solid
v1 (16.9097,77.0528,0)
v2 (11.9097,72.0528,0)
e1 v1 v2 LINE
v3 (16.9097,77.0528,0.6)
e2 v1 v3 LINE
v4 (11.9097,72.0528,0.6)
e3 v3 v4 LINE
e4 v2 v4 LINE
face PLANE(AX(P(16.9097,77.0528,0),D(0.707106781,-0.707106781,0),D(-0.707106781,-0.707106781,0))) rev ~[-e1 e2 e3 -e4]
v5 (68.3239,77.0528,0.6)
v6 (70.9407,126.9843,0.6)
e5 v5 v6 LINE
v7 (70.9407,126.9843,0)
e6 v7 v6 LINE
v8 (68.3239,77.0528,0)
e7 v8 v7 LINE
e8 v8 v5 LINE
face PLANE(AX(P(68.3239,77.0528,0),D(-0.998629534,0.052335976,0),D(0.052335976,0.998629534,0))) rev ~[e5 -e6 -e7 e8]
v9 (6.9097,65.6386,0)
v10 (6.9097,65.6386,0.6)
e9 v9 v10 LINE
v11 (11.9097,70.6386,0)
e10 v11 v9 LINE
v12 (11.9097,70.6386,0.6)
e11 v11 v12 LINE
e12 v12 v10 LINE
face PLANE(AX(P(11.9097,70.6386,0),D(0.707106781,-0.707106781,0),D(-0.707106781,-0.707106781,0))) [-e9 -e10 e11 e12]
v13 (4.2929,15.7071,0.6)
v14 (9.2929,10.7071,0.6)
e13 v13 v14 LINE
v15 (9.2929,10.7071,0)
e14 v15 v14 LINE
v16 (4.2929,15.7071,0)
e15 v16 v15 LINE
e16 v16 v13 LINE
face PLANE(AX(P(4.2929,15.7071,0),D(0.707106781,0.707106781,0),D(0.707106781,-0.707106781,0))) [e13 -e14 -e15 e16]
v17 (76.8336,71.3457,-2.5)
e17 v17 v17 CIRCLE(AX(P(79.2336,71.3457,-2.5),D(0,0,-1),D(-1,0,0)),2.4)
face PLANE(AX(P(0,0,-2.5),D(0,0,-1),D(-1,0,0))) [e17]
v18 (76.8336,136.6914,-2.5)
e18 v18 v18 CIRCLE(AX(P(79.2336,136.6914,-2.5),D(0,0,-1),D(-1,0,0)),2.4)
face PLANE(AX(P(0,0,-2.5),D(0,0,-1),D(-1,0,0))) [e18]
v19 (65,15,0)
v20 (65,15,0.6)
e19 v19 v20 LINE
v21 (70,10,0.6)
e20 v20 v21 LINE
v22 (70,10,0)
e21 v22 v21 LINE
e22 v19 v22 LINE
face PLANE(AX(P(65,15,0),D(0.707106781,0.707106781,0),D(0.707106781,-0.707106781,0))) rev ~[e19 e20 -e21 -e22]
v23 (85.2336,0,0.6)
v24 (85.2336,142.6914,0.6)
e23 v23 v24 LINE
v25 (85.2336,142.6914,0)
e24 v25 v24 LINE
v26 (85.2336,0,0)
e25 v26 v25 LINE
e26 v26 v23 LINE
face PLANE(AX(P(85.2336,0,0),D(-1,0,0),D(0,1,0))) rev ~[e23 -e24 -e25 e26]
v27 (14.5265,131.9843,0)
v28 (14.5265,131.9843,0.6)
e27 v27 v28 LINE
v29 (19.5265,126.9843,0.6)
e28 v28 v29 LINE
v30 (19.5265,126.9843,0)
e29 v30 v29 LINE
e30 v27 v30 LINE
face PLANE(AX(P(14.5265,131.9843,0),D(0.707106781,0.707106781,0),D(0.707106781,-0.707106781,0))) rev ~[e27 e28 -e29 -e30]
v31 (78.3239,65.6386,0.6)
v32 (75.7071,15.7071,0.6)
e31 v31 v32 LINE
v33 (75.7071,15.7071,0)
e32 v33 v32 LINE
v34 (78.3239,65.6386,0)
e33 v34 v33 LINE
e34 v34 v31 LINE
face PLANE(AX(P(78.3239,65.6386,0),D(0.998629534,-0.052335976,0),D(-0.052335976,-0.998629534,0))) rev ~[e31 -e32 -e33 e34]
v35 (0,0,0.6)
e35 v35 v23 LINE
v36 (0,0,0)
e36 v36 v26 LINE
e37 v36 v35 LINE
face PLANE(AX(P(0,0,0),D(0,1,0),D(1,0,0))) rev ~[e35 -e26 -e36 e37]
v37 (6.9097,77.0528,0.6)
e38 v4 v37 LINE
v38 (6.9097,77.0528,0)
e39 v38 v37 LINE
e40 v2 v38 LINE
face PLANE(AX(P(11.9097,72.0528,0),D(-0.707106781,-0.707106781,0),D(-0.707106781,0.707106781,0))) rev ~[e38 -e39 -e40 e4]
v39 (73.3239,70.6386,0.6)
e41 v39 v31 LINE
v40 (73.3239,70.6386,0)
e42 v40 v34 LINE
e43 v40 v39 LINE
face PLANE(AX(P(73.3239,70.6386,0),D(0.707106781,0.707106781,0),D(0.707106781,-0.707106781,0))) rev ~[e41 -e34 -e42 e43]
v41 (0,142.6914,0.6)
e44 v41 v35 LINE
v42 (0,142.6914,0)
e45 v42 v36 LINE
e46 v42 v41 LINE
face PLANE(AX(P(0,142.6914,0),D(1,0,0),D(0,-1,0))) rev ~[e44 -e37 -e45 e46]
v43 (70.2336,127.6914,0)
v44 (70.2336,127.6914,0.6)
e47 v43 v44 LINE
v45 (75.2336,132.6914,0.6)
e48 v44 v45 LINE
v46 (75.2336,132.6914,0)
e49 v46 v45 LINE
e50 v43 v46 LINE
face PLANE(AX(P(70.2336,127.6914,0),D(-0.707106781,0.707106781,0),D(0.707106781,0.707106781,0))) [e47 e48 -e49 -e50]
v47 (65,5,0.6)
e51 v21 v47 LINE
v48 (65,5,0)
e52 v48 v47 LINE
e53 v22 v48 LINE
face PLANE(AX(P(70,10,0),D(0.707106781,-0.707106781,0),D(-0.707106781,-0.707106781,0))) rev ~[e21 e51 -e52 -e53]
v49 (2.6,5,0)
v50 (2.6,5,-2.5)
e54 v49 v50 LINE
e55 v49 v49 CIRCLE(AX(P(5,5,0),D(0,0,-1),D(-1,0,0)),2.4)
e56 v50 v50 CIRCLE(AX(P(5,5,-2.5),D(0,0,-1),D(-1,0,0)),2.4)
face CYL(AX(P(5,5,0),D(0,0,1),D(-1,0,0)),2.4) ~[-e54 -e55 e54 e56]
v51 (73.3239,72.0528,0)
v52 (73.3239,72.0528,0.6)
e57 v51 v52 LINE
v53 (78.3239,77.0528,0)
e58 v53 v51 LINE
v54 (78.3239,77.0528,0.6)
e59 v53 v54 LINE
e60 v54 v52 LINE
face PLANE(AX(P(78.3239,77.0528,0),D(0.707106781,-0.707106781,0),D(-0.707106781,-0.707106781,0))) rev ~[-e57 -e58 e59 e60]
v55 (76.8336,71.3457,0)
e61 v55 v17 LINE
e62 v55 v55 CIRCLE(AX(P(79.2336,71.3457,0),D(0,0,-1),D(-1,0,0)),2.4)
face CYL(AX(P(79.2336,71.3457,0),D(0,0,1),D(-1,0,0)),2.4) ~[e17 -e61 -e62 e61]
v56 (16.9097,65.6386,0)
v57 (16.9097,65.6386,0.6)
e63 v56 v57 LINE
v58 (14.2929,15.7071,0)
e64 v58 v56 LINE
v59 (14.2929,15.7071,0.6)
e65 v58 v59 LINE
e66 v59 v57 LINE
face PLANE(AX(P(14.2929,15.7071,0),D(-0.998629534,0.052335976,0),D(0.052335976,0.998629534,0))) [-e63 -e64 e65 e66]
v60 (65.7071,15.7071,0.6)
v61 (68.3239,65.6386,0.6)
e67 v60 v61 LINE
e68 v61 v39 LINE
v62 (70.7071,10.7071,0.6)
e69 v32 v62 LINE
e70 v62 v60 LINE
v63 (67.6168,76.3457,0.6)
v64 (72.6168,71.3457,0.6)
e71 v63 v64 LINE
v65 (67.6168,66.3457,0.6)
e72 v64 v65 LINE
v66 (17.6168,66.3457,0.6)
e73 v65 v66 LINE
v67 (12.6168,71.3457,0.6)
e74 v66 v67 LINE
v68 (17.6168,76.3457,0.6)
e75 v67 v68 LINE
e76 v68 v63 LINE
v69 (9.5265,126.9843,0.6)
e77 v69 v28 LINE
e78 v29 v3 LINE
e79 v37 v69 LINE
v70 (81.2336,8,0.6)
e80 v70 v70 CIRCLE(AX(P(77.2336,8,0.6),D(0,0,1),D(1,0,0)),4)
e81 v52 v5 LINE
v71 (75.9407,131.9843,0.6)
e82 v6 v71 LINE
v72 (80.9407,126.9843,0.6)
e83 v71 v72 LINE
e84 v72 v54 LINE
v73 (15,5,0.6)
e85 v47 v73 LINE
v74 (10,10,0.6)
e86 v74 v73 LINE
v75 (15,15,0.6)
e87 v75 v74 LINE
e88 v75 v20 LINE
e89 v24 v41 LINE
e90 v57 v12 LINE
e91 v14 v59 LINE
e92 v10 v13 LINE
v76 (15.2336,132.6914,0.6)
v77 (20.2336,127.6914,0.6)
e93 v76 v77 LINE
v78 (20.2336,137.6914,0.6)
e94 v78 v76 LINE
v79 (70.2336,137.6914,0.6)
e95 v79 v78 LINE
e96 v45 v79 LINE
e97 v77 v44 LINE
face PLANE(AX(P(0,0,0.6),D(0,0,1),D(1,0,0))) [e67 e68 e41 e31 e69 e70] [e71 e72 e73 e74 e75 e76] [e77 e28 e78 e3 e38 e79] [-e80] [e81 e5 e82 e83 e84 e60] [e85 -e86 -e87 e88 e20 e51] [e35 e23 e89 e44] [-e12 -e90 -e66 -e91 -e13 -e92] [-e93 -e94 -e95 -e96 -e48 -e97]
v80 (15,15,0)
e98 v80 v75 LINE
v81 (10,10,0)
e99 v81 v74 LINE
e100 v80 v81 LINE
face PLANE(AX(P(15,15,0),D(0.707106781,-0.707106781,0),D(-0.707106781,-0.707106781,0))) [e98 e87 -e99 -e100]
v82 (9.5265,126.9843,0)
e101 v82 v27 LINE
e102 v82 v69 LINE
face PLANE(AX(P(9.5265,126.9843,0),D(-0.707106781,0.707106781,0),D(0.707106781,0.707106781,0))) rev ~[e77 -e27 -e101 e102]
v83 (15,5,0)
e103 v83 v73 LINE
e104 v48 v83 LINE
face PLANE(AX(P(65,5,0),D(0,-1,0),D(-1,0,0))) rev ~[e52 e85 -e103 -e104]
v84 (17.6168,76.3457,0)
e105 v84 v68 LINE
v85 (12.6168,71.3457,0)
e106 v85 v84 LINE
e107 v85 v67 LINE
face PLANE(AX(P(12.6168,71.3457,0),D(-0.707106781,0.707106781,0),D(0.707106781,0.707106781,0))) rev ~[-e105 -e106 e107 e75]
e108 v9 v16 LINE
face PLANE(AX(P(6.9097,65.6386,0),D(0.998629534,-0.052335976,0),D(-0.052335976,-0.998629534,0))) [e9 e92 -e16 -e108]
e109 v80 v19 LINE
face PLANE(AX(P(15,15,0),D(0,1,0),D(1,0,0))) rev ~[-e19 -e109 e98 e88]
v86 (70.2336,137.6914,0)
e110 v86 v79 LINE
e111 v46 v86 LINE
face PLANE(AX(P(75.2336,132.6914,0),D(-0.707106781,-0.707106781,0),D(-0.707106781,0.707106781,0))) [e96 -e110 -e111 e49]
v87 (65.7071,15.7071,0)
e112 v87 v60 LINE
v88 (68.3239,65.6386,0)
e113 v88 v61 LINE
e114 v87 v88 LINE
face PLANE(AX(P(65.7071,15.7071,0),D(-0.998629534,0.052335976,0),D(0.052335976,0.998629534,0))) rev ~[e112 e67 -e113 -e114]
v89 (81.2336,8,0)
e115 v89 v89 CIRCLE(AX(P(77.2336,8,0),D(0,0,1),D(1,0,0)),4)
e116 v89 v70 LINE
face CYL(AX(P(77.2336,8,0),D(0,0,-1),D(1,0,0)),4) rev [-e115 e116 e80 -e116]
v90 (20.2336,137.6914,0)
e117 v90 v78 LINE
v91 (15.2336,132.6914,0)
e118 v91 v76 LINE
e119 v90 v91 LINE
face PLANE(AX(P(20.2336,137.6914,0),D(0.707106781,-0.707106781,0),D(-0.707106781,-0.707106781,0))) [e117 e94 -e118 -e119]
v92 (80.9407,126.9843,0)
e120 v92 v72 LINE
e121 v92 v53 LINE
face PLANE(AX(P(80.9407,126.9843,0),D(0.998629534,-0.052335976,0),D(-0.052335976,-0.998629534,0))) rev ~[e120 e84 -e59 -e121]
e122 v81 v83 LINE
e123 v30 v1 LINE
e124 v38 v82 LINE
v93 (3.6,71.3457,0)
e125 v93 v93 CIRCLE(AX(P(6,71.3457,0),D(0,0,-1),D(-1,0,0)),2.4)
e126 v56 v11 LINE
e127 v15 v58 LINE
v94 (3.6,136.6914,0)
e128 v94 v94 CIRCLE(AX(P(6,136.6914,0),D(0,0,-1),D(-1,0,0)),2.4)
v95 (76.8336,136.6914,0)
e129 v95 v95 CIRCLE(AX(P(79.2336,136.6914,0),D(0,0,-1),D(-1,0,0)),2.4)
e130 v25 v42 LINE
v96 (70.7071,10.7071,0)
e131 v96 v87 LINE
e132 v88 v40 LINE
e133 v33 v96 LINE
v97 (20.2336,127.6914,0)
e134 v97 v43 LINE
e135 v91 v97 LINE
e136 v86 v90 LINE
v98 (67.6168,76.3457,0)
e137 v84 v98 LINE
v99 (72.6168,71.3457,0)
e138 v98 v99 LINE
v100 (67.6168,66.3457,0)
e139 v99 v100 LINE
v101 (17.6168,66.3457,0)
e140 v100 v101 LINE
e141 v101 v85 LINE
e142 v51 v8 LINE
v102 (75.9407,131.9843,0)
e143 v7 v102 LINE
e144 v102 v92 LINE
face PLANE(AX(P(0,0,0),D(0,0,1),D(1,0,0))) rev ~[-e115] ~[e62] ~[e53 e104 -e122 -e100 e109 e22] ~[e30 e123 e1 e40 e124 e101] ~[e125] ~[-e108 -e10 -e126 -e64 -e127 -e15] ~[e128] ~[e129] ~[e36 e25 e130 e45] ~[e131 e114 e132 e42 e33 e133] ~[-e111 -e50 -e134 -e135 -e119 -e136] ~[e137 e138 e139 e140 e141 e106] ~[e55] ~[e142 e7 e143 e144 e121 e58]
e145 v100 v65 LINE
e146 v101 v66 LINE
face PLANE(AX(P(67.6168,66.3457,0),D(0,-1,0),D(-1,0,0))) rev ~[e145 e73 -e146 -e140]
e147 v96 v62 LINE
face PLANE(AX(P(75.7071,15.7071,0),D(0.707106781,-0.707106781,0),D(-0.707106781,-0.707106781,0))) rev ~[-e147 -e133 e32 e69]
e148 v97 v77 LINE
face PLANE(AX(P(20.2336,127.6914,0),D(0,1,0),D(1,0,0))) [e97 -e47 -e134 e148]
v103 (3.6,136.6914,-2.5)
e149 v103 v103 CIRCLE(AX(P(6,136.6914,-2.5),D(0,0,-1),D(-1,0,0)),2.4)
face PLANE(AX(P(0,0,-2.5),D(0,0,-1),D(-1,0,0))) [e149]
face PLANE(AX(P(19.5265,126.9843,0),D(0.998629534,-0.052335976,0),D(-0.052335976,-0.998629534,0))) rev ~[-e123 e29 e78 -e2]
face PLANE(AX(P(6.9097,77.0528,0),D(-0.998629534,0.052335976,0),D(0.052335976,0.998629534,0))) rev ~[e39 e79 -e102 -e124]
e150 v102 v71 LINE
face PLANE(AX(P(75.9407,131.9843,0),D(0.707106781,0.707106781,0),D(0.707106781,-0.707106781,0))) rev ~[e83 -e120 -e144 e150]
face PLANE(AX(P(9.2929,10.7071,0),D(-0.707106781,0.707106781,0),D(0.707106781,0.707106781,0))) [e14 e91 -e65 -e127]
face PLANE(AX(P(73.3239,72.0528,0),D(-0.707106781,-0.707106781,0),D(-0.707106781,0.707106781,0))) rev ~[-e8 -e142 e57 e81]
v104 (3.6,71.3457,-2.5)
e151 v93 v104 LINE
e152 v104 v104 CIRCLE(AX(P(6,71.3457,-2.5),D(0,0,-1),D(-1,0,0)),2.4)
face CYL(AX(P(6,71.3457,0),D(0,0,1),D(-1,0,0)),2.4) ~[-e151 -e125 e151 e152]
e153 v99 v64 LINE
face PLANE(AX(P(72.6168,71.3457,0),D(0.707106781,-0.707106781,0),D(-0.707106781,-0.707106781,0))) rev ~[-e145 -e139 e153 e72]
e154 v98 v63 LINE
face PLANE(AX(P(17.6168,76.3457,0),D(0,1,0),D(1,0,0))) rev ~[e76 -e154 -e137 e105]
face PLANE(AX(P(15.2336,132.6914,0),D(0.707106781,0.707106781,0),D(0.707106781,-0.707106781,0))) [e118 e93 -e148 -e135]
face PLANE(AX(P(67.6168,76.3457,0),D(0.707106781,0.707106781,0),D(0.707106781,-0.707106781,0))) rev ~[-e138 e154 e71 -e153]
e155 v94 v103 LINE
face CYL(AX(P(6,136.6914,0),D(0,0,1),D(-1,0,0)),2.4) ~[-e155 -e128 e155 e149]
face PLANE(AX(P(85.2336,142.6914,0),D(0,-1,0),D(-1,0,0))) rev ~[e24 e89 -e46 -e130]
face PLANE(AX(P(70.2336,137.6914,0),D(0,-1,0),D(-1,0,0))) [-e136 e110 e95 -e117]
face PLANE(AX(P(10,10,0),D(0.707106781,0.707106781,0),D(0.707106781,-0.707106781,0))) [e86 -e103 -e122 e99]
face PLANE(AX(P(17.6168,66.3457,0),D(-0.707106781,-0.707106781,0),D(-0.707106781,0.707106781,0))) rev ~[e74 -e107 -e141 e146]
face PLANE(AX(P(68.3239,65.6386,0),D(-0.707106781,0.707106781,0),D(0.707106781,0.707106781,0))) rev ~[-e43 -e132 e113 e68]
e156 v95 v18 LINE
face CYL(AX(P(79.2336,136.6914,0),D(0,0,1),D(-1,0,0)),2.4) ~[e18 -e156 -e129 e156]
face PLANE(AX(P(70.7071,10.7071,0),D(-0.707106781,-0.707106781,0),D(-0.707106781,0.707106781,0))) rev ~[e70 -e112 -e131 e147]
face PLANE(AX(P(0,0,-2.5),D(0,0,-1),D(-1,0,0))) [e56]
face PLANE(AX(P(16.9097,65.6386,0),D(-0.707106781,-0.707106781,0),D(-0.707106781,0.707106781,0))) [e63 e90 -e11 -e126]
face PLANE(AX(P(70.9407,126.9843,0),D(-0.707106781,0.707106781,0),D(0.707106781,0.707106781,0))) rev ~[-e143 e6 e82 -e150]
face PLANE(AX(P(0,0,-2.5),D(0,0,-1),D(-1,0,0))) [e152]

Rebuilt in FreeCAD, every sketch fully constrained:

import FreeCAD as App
import Part
import Sketcher
from FreeCAD import Vector
Q = App.Units.Quantity


def add_polygon(sketch, points):
    """Adds a closed chain of lines whose ends are joined by coincident constraints."""
    first, n = sketch.GeometryCount, len(points)
    for a, b in zip(points, points[1:] + points[:1]):
        sketch.addGeometry(Part.LineSegment(App.Vector(*a, 0), App.Vector(*b, 0)), False)
    for i in range(n):
        sketch.addConstraint(Sketcher.Constraint("Coincident", first + i, 2, first + (i + 1) % n, 1))

doc = App.newDocument("Part")
body = doc.addObject("PartDesign::Body", "Body")

# Sketch on XY plane
sketch1 = body.newObject("Sketcher::SketchObject", "Sketch")
sketch1.AttachmentSupport = (doc.getObject("XY_Plane"), [""])
sketch1.MapMode = "FlatFace"
add_polygon(sketch1, [(0, 142.7), (0, 0), (85.2, 0), (85.2, 142.7)])  # lines 0-3
add_polygon(sketch1, [(10, 10), (15, 15), (65, 15), (70, 10), (65, 5), (15, 5)])  # lines 4-9
add_polygon(sketch1, [(6.9, 65.6), (11.9, 70.6), (16.9, 65.6), (14.3, 15.7), (9.3, 10.7), (4.3, 15.7)])  # lines 10-15
sketch1.addGeometry(Part.Circle(Vector(77.2, 8, 0), Vector(0, 0, 1), 4), False)  # 16
add_polygon(sketch1, [(75.7, 15.7), (70.7, 10.7), (65.7, 15.7), (68.3, 65.6), (73.3, 70.6), (78.3, 65.6)])  # lines 17-22
add_polygon(sketch1, [(9.5, 127), (14.5, 132), (19.5, 127), (16.9, 77.1), (11.9, 72.1), (6.9, 77.1)])  # lines 23-28
add_polygon(sketch1, [(17.6, 66.3), (12.6, 71.3), (17.6, 76.3), (67.6, 76.3), (72.6, 71.3), (67.6, 66.3)])  # lines 29-34
add_polygon(sketch1, [(70.9, 127), (75.9, 132), (80.9, 127), (78.3, 77.1), (73.3, 72.1), (68.3, 77.1)])  # lines 35-40
add_polygon(sketch1, [(15.2, 132.7), (20.2, 137.7), (70.2, 137.7), (75.2, 132.7), (70.2, 127.7), (20.2, 127.7)])  # lines 41-46
sketch1.addConstraint(Sketcher.Constraint("Vertical", 0))
sketch1.addConstraint(Sketcher.Constraint("Horizontal", 1))
sketch1.addConstraint(Sketcher.Constraint("Vertical", 2))
sketch1.addConstraint(Sketcher.Constraint("Horizontal", 3))
sketch1.addConstraint(Sketcher.Constraint("Horizontal", 5))
sketch1.addConstraint(Sketcher.Constraint("Horizontal", 8))
sketch1.addConstraint(Sketcher.Constraint("Horizontal", 31))
sketch1.addConstraint(Sketcher.Constraint("Horizontal", 34))
sketch1.addConstraint(Sketcher.Constraint("Horizontal", 42))
sketch1.addConstraint(Sketcher.Constraint("Horizontal", 45))
sketch1.addConstraint(Sketcher.Constraint("Coincident", 0, 2, -1, 1))
sketch1.addConstraint(Sketcher.Constraint("Perpendicular", 4, 6))
sketch1.addConstraint(Sketcher.Constraint("Perpendicular", 6, 7))
sketch1.addConstraint(Sketcher.Constraint("Perpendicular", 7, 9))
sketch1.addConstraint(Sketcher.Constraint("Perpendicular", 9, 10))
sketch1.addConstraint(Sketcher.Constraint("Perpendicular", 10, 11))
sketch1.addConstraint(Sketcher.Constraint("Perpendicular", 11, 13))
sketch1.addConstraint(Sketcher.Constraint("Perpendicular", 13, 14))
sketch1.addConstraint(Sketcher.Constraint("Parallel", 12, 15))
sketch1.addConstraint(Sketcher.Constraint("Perpendicular", 14, 17))
sketch1.addConstraint(Sketcher.Constraint("Perpendicular", 17, 18))
sketch1.addConstraint(Sketcher.Constraint("Parallel", 15, 19))
sketch1.addConstraint(Sketcher.Constraint("Perpendicular", 18, 20))
sketch1.addConstraint(Sketcher.Constraint("Perpendicular", 20, 21))
sketch1.addConstraint(Sketcher.Constraint("Parallel", 19, 22))
sketch1.addConstraint(Sketcher.Constraint("Perpendicular", 21, 23))
sketch1.addConstraint(Sketcher.Constraint("Perpendicular", 23, 24))
sketch1.addConstraint(Sketcher.Constraint("Parallel", 22, 25))
sketch1.addConstraint(Sketcher.Constraint("Perpendicular", 24, 26))
sketch1.addConstraint(Sketcher.Constraint("Perpendicular", 26, 27))
sketch1.addConstraint(Sketcher.Constraint("Parallel", 25, 28))
sketch1.addConstraint(Sketcher.Constraint("Parallel", 27, 29))
sketch1.addConstraint(Sketcher.Constraint("Perpendicular", 29, 30))
sketch1.addConstraint(Sketcher.Constraint("Perpendicular", 30, 32))
sketch1.addConstraint(Sketcher.Constraint("Perpendicular", 32, 33))
sketch1.addConstraint(Sketcher.Constraint("Parallel", 33, 35))
sketch1.addConstraint(Sketcher.Constraint("Perpendicular", 35, 36))
sketch1.addConstraint(Sketcher.Constraint("Parallel", 28, 37))
sketch1.addConstraint(Sketcher.Constraint("Perpendicular", 36, 38))
sketch1.addConstraint(Sketcher.Constraint("Perpendicular", 38, 39))
sketch1.addConstraint(Sketcher.Constraint("Parallel", 37, 40))
sketch1.addConstraint(Sketcher.Constraint("Perpendicular", 39, 41))
sketch1.addConstraint(Sketcher.Constraint("Perpendicular", 41, 43))
sketch1.addConstraint(Sketcher.Constraint("Perpendicular", 43, 44))
sketch1.addConstraint(Sketcher.Constraint("Perpendicular", 44, 46))
sketch1.addConstraint(Sketcher.Constraint("Horizontal", 6, 2, 9, 2))
sketch1.addConstraint(Sketcher.Constraint("Horizontal", 12, 2, 14, 2))
sketch1.addConstraint(Sketcher.Constraint("Horizontal", 11, 2, 15, 2))
sketch1.addConstraint(Sketcher.Constraint("Horizontal", 13, 2, 17, 2))
sketch1.addConstraint(Sketcher.Constraint("Horizontal", 14, 2, 18, 2))
sketch1.addConstraint(Sketcher.Constraint("Horizontal", 15, 2, 19, 2))
sketch1.addConstraint(Sketcher.Constraint("Horizontal", 10, 2, 20, 2))
sketch1.addConstraint(Sketcher.Constraint("Horizontal", 19, 2, 21, 2))
sketch1.addConstraint(Sketcher.Constraint("Horizontal", 25, 2, 27, 2))
sketch1.addConstraint(Sketcher.Constraint("Horizontal", 24, 2, 28, 2))
sketch1.addConstraint(Sketcher.Constraint("Horizontal", 29, 2, 32, 2))
sketch1.addConstraint(Sketcher.Constraint("Horizontal", 23, 2, 35, 2))
sketch1.addConstraint(Sketcher.Constraint("Horizontal", 28, 2, 36, 2))
sketch1.addConstraint(Sketcher.Constraint("Horizontal", 27, 2, 37, 2))
sketch1.addConstraint(Sketcher.Constraint("Horizontal", 26, 2, 38, 2))
sketch1.addConstraint(Sketcher.Constraint("Horizontal", 37, 2, 39, 2))
sketch1.addConstraint(Sketcher.Constraint("Horizontal", 43, 2, 46, 2))
sketch1.addConstraint(Sketcher.Constraint("Vertical", 5, 2, 7, 2))
sketch1.addConstraint(Sketcher.Constraint("Vertical", 4, 2, 8, 2))
sketch1.addConstraint(Sketcher.Constraint("Vertical", 11, 2, 25, 2))
sketch1.addConstraint(Sketcher.Constraint("Vertical", 10, 2, 26, 2))
sketch1.addConstraint(Sketcher.Constraint("Vertical", 31, 2, 33, 2))
sketch1.addConstraint(Sketcher.Constraint("Vertical", 21, 2, 37, 2))
sketch1.addConstraint(Sketcher.Constraint("Vertical", 42, 2, 44, 2))
sketch1.addConstraint(Sketcher.Constraint("Equal", 8, 31))
sketch1.addConstraint(Sketcher.Constraint("Equal", 34, 42))
sketch1.addConstraint(Sketcher.Constraint("Equal", 9, 10))
sketch1.addConstraint(Sketcher.Constraint("Equal", 22, 25))
sketch1.addConstraint(Sketcher.Constraint("Equal", 27, 29))
sketch1.addConstraint(Sketcher.Constraint("Equal", 39, 41))
sketch1.addConstraint(Sketcher.Constraint("Diameter", 16, 8.0))
sketch1.addConstraint(Sketcher.Constraint("DistanceX", 5, 1, 5, 2, 50.0))
sketch1.addConstraint(Sketcher.Constraint("Distance", 12, 50.0))
sketch1.addConstraint(Sketcher.Constraint("DistanceY", -1, 1, 16, 3, 8.0))
sketch1.addConstraint(Sketcher.Constraint("DistanceY", -1, 1, 6, 2, 10.0))
sketch1.addConstraint(Sketcher.Constraint("DistanceY", -1, 1, 7, 2, 5.0))
sketch1.addConstraint(Sketcher.Constraint("DistanceX", -1, 1, 9, 2, 10.0))
sketch1.addConstraint(Sketcher.Constraint("DistanceX", 16, 3, 1, 2, 8.0))
sketch1.addConstraint(Sketcher.Constraint("DistanceY", 41, 2, 3, 2, 5.0))
sketch1.addConstraint(Sketcher.Constraint("DistanceX", 43, 2, 2, 2, 10.0))
sketch1.addConstraint(Sketcher.Constraint("Angle", 12, Q("-93 deg")))
sketch1.addConstraint(Sketcher.Constraint("DistanceX", 1, 1, 1, 2, 85.2336))
sketch1.addConstraint(Sketcher.Constraint("DistanceY", 0, 2, 0, 1, 142.6914))
sketch1.addConstraint(Sketcher.Constraint("DistanceX", -1, 1, 12, 2, 14.293))
sketch1.addConstraint(Sketcher.Constraint("DistanceY", -1, 1, 12, 2, 15.707))
sketch1.addConstraint(Sketcher.Constraint("DistanceX", -1, 1, 17, 2, 70.707))
sketch1.addConstraint(Sketcher.Constraint("DistanceY", 23, 2, 3, 2, 10.707))
sketch1.addConstraint(Sketcher.Constraint("DistanceX", 10, 2, 29, 2, 0.707))
sketch1.addConstraint(Sketcher.Constraint("DistanceY", 10, 2, 29, 2, 0.707))
pad1 = body.newObject("PartDesign::Pad", "Pad")
pad1.Profile = sketch1
pad1.Length = 0.6

# Sketch on XY plane
sketch2 = body.newObject("Sketcher::SketchObject", "Sketch001")
sketch2.AttachmentSupport = (doc.getObject("XY_Plane"), [""])
sketch2.MapMode = "FlatFace"
sketch2.addGeometry(Part.Circle(Vector(79.2, 136.7, 0), Vector(0, 0, 1), 2.4), False)
sketch2.addGeometry(Part.Circle(Vector(6, 136.7, 0), Vector(0, 0, 1), 2.4), False)
sketch2.addGeometry(Part.Circle(Vector(79.2, 71.3, 0), Vector(0, 0, 1), 2.4), False)
sketch2.addGeometry(Part.Circle(Vector(6, 71.3, 0), Vector(0, 0, 1), 2.4), False)
sketch2.addGeometry(Part.Circle(Vector(5, 5, 0), Vector(0, 0, 1), 2.4), False)
sketch2.addConstraint(Sketcher.Constraint("Equal", 0, 1))
sketch2.addConstraint(Sketcher.Constraint("Equal", 1, 2))
sketch2.addConstraint(Sketcher.Constraint("Equal", 2, 3))
sketch2.addConstraint(Sketcher.Constraint("Equal", 3, 4))
sketch2.addConstraint(Sketcher.Constraint("Horizontal", 0, 3, 1, 3))
sketch2.addConstraint(Sketcher.Constraint("Horizontal", 2, 3, 3, 3))
sketch2.addConstraint(Sketcher.Constraint("Vertical", 0, 3, 2, 3))
sketch2.addConstraint(Sketcher.Constraint("Vertical", 1, 3, 3, 3))
sketch2.addConstraint(Sketcher.Constraint("Diameter", 0, 4.8))
sketch2.addConstraint(Sketcher.Constraint("DistanceX", -1, 1, 1, 3, 6.0))
sketch2.addConstraint(Sketcher.Constraint("DistanceX", -1, 1, 4, 3, 5.0))
sketch2.addConstraint(Sketcher.Constraint("DistanceY", -1, 1, 4, 3, 5.0))
sketch2.addConstraint(Sketcher.Constraint("DistanceX", -1, 1, 0, 3, 79.2336))
sketch2.addConstraint(Sketcher.Constraint("DistanceY", -1, 1, 0, 3, 136.6914))
sketch2.addConstraint(Sketcher.Constraint("DistanceY", -1, 1, 2, 3, 71.3457))
pad2 = body.newObject("PartDesign::Pad", "Pad001")
pad2.Profile = sketch2
pad2.Length = 2.5
pad2.Reversed = True

doc.recompute()
